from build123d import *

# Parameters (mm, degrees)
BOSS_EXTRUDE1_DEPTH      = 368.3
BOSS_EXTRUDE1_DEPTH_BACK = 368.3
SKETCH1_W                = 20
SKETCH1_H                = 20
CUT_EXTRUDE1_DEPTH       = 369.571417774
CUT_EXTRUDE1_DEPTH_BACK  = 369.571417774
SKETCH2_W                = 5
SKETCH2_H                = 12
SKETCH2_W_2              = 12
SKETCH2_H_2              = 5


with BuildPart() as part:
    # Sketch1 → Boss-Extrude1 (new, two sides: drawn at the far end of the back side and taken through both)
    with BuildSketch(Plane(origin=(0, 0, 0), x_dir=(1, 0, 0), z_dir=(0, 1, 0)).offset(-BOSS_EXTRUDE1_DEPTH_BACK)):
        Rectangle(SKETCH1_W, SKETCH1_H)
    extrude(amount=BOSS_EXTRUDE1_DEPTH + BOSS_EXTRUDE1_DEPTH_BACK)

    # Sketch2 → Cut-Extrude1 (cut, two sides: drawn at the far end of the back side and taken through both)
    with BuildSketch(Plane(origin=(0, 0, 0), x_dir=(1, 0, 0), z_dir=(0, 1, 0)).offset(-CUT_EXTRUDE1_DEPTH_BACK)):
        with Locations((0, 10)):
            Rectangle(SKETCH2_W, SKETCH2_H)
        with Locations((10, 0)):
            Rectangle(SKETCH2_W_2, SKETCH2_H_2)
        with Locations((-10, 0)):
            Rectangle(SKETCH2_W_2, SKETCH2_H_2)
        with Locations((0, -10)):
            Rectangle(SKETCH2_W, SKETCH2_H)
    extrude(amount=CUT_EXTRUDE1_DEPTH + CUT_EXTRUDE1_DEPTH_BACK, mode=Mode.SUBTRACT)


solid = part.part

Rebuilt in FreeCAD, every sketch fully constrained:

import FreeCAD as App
import Part
import Sketcher

doc = App.newDocument("Part")
body = doc.addObject("PartDesign::Body", "Body")

# Sketch on XZ plane
sketch1 = body.newObject("Sketcher::SketchObject", "Sketch")
sketch1.AttachmentSupport = (doc.getObject("XZ_Plane"), [""])
sketch1.MapMode = "FlatFace"
sketch1.addGeometry(Part.LineSegment(App.Vector(-10, -10, 0), App.Vector(-10, 10, 0)), False)
sketch1.addGeometry(Part.LineSegment(App.Vector(-10, 10, 0), App.Vector(10, 10, 0)), False)
sketch1.addGeometry(Part.LineSegment(App.Vector(10, 10, 0), App.Vector(10, -10, 0)), False)
sketch1.addGeometry(Part.LineSegment(App.Vector(10, -10, 0), App.Vector(-10, -10, 0)), False)
sketch1.addConstraint(Sketcher.Constraint("Coincident", 0, 2, 1, 1))
sketch1.addConstraint(Sketcher.Constraint("Coincident", 1, 2, 2, 1))
sketch1.addConstraint(Sketcher.Constraint("Coincident", 2, 2, 3, 1))
sketch1.addConstraint(Sketcher.Constraint("Coincident", 3, 2, 0, 1))
sketch1.addConstraint(Sketcher.Constraint("Vertical", 0))
sketch1.addConstraint(Sketcher.Constraint("Horizontal", 1))
sketch1.addConstraint(Sketcher.Constraint("Vertical", 2))
sketch1.addConstraint(Sketcher.Constraint("Horizontal", 3))
sketch1.addConstraint(Sketcher.Constraint("Symmetric", 0, 2, 2, 2, -1, 1))
sketch1.addConstraint(Sketcher.Constraint("Equal", 3, 0))
sketch1.addConstraint(Sketcher.Constraint("DistanceX", 1, 1, 1, 2, 20.0))
pad1 = body.newObject("PartDesign::Pad", "Pad")
pad1.Profile = sketch1
pad1.Type = "TwoLengths"
pad1.Length = 368.3
pad1.Length2 = 368.3
pad1.Reversed = True

# Sketch on XZ plane
sketch2 = body.newObject("Sketcher::SketchObject", "Sketch001")
sketch2.AttachmentSupport = (doc.getObject("XZ_Plane"), [""])
sketch2.MapMode = "FlatFace"
sketch2.addGeometry(Part.LineSegment(App.Vector(-2.5, -16, 0), App.Vector(-2.5, -4, 0)), False)
sketch2.addGeometry(Part.LineSegment(App.Vector(-2.5, -4, 0), App.Vector(2.5, -4, 0)), False)
sketch2.addGeometry(Part.LineSegment(App.Vector(2.5, -4, 0), App.Vector(2.5, -16, 0)), False)
sketch2.addGeometry(Part.LineSegment(App.Vector(2.5, -16, 0), App.Vector(-2.5, -16, 0)), False)
sketch2.addGeometry(Part.LineSegment(App.Vector(4, -2.5, 0), App.Vector(4, 2.5, 0)), False)
sketch2.addGeometry(Part.LineSegment(App.Vector(4, 2.5, 0), App.Vector(16, 2.5, 0)), False)
sketch2.addGeometry(Part.LineSegment(App.Vector(16, 2.5, 0), App.Vector(16, -2.5, 0)), False)
sketch2.addGeometry(Part.LineSegment(App.Vector(16, -2.5, 0), App.Vector(4, -2.5, 0)), False)
sketch2.addGeometry(Part.LineSegment(App.Vector(-16, -2.5, 0), App.Vector(-16, 2.5, 0)), False)
sketch2.addGeometry(Part.LineSegment(App.Vector(-16, 2.5, 0), App.Vector(-4, 2.5, 0)), False)
sketch2.addGeometry(Part.LineSegment(App.Vector(-4, 2.5, 0), App.Vector(-4, -2.5, 0)), False)
sketch2.addGeometry(Part.LineSegment(App.Vector(-4, -2.5, 0), App.Vector(-16, -2.5, 0)), False)
sketch2.addGeometry(Part.LineSegment(App.Vector(-2.5, 4, 0), App.Vector(-2.5, 16, 0)), False)
sketch2.addGeometry(Part.LineSegment(App.Vector(-2.5, 16, 0), App.Vector(2.5, 16, 0)), False)
sketch2.addGeometry(Part.LineSegment(App.Vector(2.5, 16, 0), App.Vector(2.5, 4, 0)), False)
sketch2.addGeometry(Part.LineSegment(App.Vector(2.5, 4, 0), App.Vector(-2.5, 4, 0)), False)
sketch2.addConstraint(Sketcher.Constraint("Coincident", 0, 2, 1, 1))
sketch2.addConstraint(Sketcher.Constraint("Coincident", 1, 2, 2, 1))
sketch2.addConstraint(Sketcher.Constraint("Coincident", 2, 2, 3, 1))
sketch2.addConstraint(Sketcher.Constraint("Coincident", 3, 2, 0, 1))
sketch2.addConstraint(Sketcher.Constraint("Coincident", 4, 2, 5, 1))
sketch2.addConstraint(Sketcher.Constraint("Coincident", 5, 2, 6, 1))
sketch2.addConstraint(Sketcher.Constraint("Coincident", 6, 2, 7, 1))
sketch2.addConstraint(Sketcher.Constraint("Coincident", 7, 2, 4, 1))
sketch2.addConstraint(Sketcher.Constraint("Coincident", 8, 2, 9, 1))
sketch2.addConstraint(Sketcher.Constraint("Coincident", 9, 2, 10, 1))
sketch2.addConstraint(Sketcher.Constraint("Coincident", 10, 2, 11, 1))
sketch2.addConstraint(Sketcher.Constraint("Coincident", 11, 2, 8, 1))
sketch2.addConstraint(Sketcher.Constraint("Coincident", 12, 2, 13, 1))
sketch2.addConstraint(Sketcher.Constraint("Coincident", 13, 2, 14, 1))
sketch2.addConstraint(Sketcher.Constraint("Coincident", 14, 2, 15, 1))
sketch2.addConstraint(Sketcher.Constraint("Coincident", 15, 2, 12, 1))
sketch2.addConstraint(Sketcher.Constraint("Vertical", 0))
sketch2.addConstraint(Sketcher.Constraint("Horizontal", 1))
sketch2.addConstraint(Sketcher.Constraint("Vertical", 2))
sketch2.addConstraint(Sketcher.Constraint("Horizontal", 3))
sketch2.addConstraint(Sketcher.Constraint("Vertical", 4))
sketch2.addConstraint(Sketcher.Constraint("Horizontal", 5))
sketch2.addConstraint(Sketcher.Constraint("Vertical", 6))
sketch2.addConstraint(Sketcher.Constraint("Horizontal", 7))
sketch2.addConstraint(Sketcher.Constraint("Vertical", 8))
sketch2.addConstraint(Sketcher.Constraint("Horizontal", 9))
sketch2.addConstraint(Sketcher.Constraint("Vertical", 10))
sketch2.addConstraint(Sketcher.Constraint("Horizontal", 11))
sketch2.addConstraint(Sketcher.Constraint("Vertical", 12))
sketch2.addConstraint(Sketcher.Constraint("Horizontal", 13))
sketch2.addConstraint(Sketcher.Constraint("Vertical", 14))
sketch2.addConstraint(Sketcher.Constraint("Horizontal", 15))
sketch2.addConstraint(Sketcher.Constraint("Symmetric", 6, 2, 8, 2, -1, 1))
sketch2.addConstraint(Sketcher.Constraint("Symmetric", 4, 2, 10, 2, -1, 1))
sketch2.addConstraint(Sketcher.Constraint("Symmetric", 2, 2, 12, 2, -1, 1))
sketch2.addConstraint(Sketcher.Constraint("Symmetric", 0, 2, 14, 2, -1, 1))
sketch2.addConstraint(Sketcher.Constraint("Horizontal", 5, 2, 8, 2))
sketch2.addConstraint(Sketcher.Constraint("Vertical", 3, 2, 12, 2))
sketch2.addConstraint(Sketcher.Constraint("Equal", 11, 0))
sketch2.addConstraint(Sketcher.Constraint("Equal", 15, 4))
sketch2.addConstraint(Sketcher.Constraint("DistanceX", 1, 1, 1, 2, 5.0))
sketch2.addConstraint(Sketcher.Constraint("DistanceX", 5, 1, 5, 2, 12.0))
sketch2.addConstraint(Sketcher.Constraint("DistanceY", 0, 2, -1, 1, 4.0))
sketch2.addConstraint(Sketcher.Constraint("DistanceX", -1, 1, 4, 2, 4.0))
pocket1 = body.newObject("PartDesign::Pocket", "Pocket")
pocket1.Profile = sketch2
pocket1.Type = "ThroughAll"
pocket1.Midplane = True

doc.recompute()
